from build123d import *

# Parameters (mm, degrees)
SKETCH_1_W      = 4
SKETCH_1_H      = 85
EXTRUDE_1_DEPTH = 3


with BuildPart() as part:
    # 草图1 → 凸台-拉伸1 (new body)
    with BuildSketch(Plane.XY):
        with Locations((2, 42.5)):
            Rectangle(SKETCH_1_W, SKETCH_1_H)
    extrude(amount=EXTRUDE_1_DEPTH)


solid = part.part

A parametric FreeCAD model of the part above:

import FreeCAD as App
import Part
import Sketcher
from FreeCAD import Vector

doc = App.newDocument("Part")
body = doc.addObject("PartDesign::Body", "Body")

# Sketch on XY plane
sketch1 = doc.addObject("Sketcher::SketchObject", "Sketch")
body.addObject(sketch1)
sketch1.AttachmentSupport = (doc.XY_Plane, [""])
sketch1.MapMode = "FlatFace"
sketch1.addGeometry([
    Part.LineSegment(Vector(0, 85, 0), Vector(0, 0, 0)),
    Part.LineSegment(Vector(0, 0, 0), Vector(4, 0, 0)),
    Part.LineSegment(Vector(4, 0, 0), Vector(4, 85, 0)),
    Part.LineSegment(Vector(4, 85, 0), Vector(0, 85, 0)),
], False)
sketch1.addConstraint([
    Sketcher.Constraint("Coincident", 0, 2, 1, 1),
    Sketcher.Constraint("Coincident", 1, 2, 2, 1),
    Sketcher.Constraint("Coincident", 2, 2, 3, 1),
    Sketcher.Constraint("Coincident", 3, 2, 0, 1),
    Sketcher.Constraint("Vertical", 0),
    Sketcher.Constraint("Horizontal", 1),
    Sketcher.Constraint("Vertical", 2),
    Sketcher.Constraint("Horizontal", 3),
    Sketcher.Constraint("Coincident", 0, 2, -1, 1),
    Sketcher.Constraint("DistanceX", 1, 1, 1, 2, 4.0),
    Sketcher.Constraint("DistanceY", 0, 2, 0, 1, 85.0),
])
pad1 = doc.addObject("PartDesign::Pad", "Pad")
body.addObject(pad1)
pad1.Profile = sketch1
pad1.Length = 3

doc.recompute()
